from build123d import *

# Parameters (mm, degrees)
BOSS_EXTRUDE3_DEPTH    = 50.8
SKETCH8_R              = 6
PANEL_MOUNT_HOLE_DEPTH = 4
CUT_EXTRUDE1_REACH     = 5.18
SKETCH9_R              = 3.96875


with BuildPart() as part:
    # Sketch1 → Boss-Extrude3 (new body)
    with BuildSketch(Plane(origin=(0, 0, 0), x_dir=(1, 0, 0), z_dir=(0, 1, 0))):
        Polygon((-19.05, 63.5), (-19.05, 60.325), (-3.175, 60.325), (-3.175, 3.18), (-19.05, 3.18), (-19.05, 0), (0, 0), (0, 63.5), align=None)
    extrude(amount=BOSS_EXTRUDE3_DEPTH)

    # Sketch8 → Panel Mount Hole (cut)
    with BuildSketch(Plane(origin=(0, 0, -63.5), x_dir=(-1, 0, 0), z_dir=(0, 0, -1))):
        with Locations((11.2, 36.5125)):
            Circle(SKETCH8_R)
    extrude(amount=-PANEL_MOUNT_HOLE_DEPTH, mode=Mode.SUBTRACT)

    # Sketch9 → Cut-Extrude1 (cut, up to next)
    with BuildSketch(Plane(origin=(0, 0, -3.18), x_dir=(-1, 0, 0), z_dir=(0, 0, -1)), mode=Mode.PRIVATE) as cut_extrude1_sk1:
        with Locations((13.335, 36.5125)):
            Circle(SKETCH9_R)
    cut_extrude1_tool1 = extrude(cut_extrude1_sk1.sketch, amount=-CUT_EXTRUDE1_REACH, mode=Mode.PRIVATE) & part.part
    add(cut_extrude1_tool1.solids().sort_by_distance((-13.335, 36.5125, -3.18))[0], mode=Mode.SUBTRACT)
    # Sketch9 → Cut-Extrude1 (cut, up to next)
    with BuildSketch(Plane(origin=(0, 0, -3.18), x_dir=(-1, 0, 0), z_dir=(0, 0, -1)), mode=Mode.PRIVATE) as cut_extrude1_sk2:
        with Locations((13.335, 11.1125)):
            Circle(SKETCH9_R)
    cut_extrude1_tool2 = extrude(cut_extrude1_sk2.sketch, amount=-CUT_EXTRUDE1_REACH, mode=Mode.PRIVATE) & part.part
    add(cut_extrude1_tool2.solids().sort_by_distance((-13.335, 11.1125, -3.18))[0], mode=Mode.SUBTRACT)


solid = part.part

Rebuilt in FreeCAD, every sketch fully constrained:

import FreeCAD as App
import Part
import Sketcher

V = App.Vector
Q = App.Units.Quantity


def add_polygon(sketch, points):
    """Adds a closed chain of lines whose ends are joined by coincident constraints."""
    first, n = sketch.GeometryCount, len(points)
    for a, b in zip(points, points[1:] + points[:1]):
        sketch.addGeometry(Part.LineSegment(App.Vector(*a, 0), App.Vector(*b, 0)), False)
    for i in range(n):
        sketch.addConstraint(Sketcher.Constraint("Coincident", first + i, 2, first + (i + 1) % n, 1))

doc = App.newDocument("Part")
params = doc.addObject("Spreadsheet::Sheet", "Params")
for row, (alias, value) in enumerate([
    ("sketch1_height", "2.5 in"),
    ("sketch1_width", "0.75 in"),
    ("sketch1_width2", "0.625 in"),
    ("sketch1_height2", "0.125 in"),
    ("pad1_length", "2 in"),
    ("pocket1_length", "4 mm"),
    ("sketch3_diameter", "0.3125 in"),
    ("sketch4_diameter", "0.3125 in"),
], start=1):
    params.set(f"A{row}", alias)
    params.set(f"B{row}", "=" + value)
    params.setAlias(f"B{row}", alias)

body = doc.addObject("PartDesign::Body", "Body")

# Sketch on XZ plane
sketch1 = body.newObject("Sketcher::SketchObject", "Sketch")
sketch1.AttachmentSupport = (doc.getObject("XZ_Plane"), [""])
sketch1.MapMode = "FlatFace"
add_polygon(sketch1, [(-19.05, -63.5), (-19.05, -60.325), (-3.175, -60.325), (-3.175, -3.18), (-19.05, -3.18), (-19.05, 0), (0, 0), (0, -63.5)])  # lines 0-7
sketch1.addConstraint(Sketcher.Constraint("Vertical", 0))
sketch1.addConstraint(Sketcher.Constraint("Horizontal", 1))
sketch1.addConstraint(Sketcher.Constraint("Vertical", 2))
sketch1.addConstraint(Sketcher.Constraint("Horizontal", 3))
sketch1.addConstraint(Sketcher.Constraint("Vertical", 4))
sketch1.addConstraint(Sketcher.Constraint("Horizontal", 5))
sketch1.addConstraint(Sketcher.Constraint("Vertical", 6))
sketch1.addConstraint(Sketcher.Constraint("Horizontal", 7))
sketch1.addConstraint(Sketcher.Constraint("Coincident", 5, 2, -1, 1))
sketch1.addConstraint(Sketcher.Constraint("Vertical", 0, 2, 3, 2))
sketch1.addConstraint(Sketcher.Constraint("DistanceY", 6, 2, 6, 1, Q("2.5 in")))
sketch1.addConstraint(Sketcher.Constraint("DistanceX", 5, 1, 5, 2, Q("0.75 in")))
sketch1.addConstraint(Sketcher.Constraint("DistanceX", 1, 1, 1, 2, Q("0.625 in")))
sketch1.addConstraint(Sketcher.Constraint("DistanceY", 0, 1, 0, 2, Q("0.125 in")))
sketch1.addConstraint(Sketcher.Constraint("DistanceY", 2, 1, 2, 2, Q("57.145 mm")))
sketch1.setExpression("Constraints[18]", "Params.sketch1_height")
sketch1.setExpression("Constraints[19]", "Params.sketch1_width")
sketch1.setExpression("Constraints[20]", "Params.sketch1_width2")
sketch1.setExpression("Constraints[21]", "Params.sketch1_height2")
pad1 = body.newObject("PartDesign::Pad", "Pad")
pad1.Profile = sketch1
pad1.setExpression("Length", "Params.pad1_length")
pad1.Reversed = True

# Sketch on XY plane
sketch2 = body.newObject("Sketcher::SketchObject", "Sketch001")
sketch2.AttachmentSupport = (doc.getObject("XY_Plane"), [""])
sketch2.MapMode = "FlatFace"
sketch2.AttachmentOffset = App.Placement(V(0, 0, -2.5 * 25.4), App.Rotation())
sketch2.addGeometry(Part.Circle(V(-11.2, 36.5125, 0), V(0, 0, 1), 6), False)
sketch2.addConstraint(Sketcher.Constraint("Diameter", 0, Q("12 mm")))
sketch2.addConstraint(Sketcher.Constraint("DistanceY", -1, 1, 0, 3, Q("1.4375 in")))
sketch2.addConstraint(Sketcher.Constraint("DistanceX", 0, 3, -1, 1, Q("11.2 mm")))
pocket1 = body.newObject("PartDesign::Pocket", "Pocket")
pocket1.Profile = sketch2
pocket1.setExpression("Length", "Params.pocket1_length")
pocket1.Reversed = True

# Sketch on XY plane
sketch3 = body.newObject("Sketcher::SketchObject", "Sketch002")
sketch3.AttachmentSupport = (doc.getObject("XY_Plane"), [""])
sketch3.MapMode = "FlatFace"
sketch3.AttachmentOffset = App.Placement(V(0, 0, -3.18), App.Rotation())
sketch3.addGeometry(Part.Circle(V(-13.335, 36.5125, 0), V(0, 0, 1), 3.96875), False)
sketch3.addConstraint(Sketcher.Constraint("Diameter", 0, Q("0.3125 in")))
sketch3.addConstraint(Sketcher.Constraint("DistanceX", 0, 3, -1, 1, Q("0.525 in")))
sketch3.addConstraint(Sketcher.Constraint("DistanceY", -1, 1, 0, 3, Q("1.4375 in")))
sketch3.setExpression("Constraints[0]", "Params.sketch3_diameter")
pocket2 = body.newObject("PartDesign::Pocket", "Pocket001")
pocket2.Profile = sketch3
pocket2.Type = "UpToFirst"
pocket2.Reversed = True

# Sketch on XY plane
sketch4 = body.newObject("Sketcher::SketchObject", "Sketch003")
sketch4.AttachmentSupport = (doc.getObject("XY_Plane"), [""])
sketch4.MapMode = "FlatFace"
sketch4.AttachmentOffset = App.Placement(V(0, 0, -3.18), App.Rotation())
sketch4.addGeometry(Part.Circle(V(-13.335, 11.1125, 0), V(0, 0, 1), 3.96875), False)
sketch4.addConstraint(Sketcher.Constraint("Diameter", 0, Q("0.3125 in")))
sketch4.addConstraint(Sketcher.Constraint("DistanceX", 0, 3, -1, 1, Q("0.525 in")))
sketch4.addConstraint(Sketcher.Constraint("DistanceY", -1, 1, 0, 3, Q("0.4375 in")))
sketch4.setExpression("Constraints[0]", "Params.sketch4_diameter")
pocket3 = body.newObject("PartDesign::Pocket", "Pocket002")
pocket3.Profile = sketch4
pocket3.Type = "UpToFirst"
pocket3.Reversed = True

doc.recompute()
